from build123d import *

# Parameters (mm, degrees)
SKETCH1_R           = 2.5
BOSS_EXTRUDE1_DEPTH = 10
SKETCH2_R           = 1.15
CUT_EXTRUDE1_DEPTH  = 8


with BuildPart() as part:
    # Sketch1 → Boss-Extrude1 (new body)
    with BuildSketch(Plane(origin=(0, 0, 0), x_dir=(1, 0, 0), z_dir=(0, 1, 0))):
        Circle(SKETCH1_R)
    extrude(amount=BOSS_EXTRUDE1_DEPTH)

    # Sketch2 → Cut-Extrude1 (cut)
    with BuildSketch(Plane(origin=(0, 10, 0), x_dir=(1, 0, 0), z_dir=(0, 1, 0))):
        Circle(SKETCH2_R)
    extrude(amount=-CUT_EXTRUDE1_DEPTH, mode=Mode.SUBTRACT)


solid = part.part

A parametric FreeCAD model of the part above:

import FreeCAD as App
import Part
import Sketcher
Q = App.Units.Quantity

doc = App.newDocument("Part")
body = doc.addObject("PartDesign::Body", "Body")

# Sketch on XZ plane
sketch1 = body.newObject("Sketcher::SketchObject", "Sketch")
sketch1.AttachmentSupport = (doc.getObject("XZ_Plane"), [""])
sketch1.MapMode = "FlatFace"
sketch1.addGeometry(Part.Circle(App.Vector(0, 0, 0), App.Vector(0, 0, 1), 2.5), False)
sketch1.addConstraint([
    Sketcher.Constraint("Coincident", 0, 3, -1, 1),
    Sketcher.Constraint("Diameter", 0, Q("5 mm")),
])
pad1 = body.newObject("PartDesign::Pad", "Pad")
pad1.Profile = sketch1
pad1.Length = 10
pad1.Reversed = True

# Sketch on XZ plane
sketch2 = body.newObject("Sketcher::SketchObject", "Sketch001")
sketch2.AttachmentSupport = (doc.getObject("XZ_Plane"), [""])
sketch2.MapMode = "FlatFace"
sketch2.AttachmentOffset = App.Placement(App.Vector(0, 0, -10), App.Rotation())
sketch2.addGeometry(Part.Circle(App.Vector(0, 0, 0), App.Vector(0, 0, 1), 1.1), False)
sketch2.addConstraint([
    Sketcher.Constraint("Coincident", 0, 3, -1, 1),
    Sketcher.Constraint("Diameter", 0, Q("2.3 mm")),
])
pocket1 = body.newObject("PartDesign::Pocket", "Pocket")
pocket1.Profile = sketch2
pocket1.Length = 8
pocket1.Reversed = True

doc.recompute()
